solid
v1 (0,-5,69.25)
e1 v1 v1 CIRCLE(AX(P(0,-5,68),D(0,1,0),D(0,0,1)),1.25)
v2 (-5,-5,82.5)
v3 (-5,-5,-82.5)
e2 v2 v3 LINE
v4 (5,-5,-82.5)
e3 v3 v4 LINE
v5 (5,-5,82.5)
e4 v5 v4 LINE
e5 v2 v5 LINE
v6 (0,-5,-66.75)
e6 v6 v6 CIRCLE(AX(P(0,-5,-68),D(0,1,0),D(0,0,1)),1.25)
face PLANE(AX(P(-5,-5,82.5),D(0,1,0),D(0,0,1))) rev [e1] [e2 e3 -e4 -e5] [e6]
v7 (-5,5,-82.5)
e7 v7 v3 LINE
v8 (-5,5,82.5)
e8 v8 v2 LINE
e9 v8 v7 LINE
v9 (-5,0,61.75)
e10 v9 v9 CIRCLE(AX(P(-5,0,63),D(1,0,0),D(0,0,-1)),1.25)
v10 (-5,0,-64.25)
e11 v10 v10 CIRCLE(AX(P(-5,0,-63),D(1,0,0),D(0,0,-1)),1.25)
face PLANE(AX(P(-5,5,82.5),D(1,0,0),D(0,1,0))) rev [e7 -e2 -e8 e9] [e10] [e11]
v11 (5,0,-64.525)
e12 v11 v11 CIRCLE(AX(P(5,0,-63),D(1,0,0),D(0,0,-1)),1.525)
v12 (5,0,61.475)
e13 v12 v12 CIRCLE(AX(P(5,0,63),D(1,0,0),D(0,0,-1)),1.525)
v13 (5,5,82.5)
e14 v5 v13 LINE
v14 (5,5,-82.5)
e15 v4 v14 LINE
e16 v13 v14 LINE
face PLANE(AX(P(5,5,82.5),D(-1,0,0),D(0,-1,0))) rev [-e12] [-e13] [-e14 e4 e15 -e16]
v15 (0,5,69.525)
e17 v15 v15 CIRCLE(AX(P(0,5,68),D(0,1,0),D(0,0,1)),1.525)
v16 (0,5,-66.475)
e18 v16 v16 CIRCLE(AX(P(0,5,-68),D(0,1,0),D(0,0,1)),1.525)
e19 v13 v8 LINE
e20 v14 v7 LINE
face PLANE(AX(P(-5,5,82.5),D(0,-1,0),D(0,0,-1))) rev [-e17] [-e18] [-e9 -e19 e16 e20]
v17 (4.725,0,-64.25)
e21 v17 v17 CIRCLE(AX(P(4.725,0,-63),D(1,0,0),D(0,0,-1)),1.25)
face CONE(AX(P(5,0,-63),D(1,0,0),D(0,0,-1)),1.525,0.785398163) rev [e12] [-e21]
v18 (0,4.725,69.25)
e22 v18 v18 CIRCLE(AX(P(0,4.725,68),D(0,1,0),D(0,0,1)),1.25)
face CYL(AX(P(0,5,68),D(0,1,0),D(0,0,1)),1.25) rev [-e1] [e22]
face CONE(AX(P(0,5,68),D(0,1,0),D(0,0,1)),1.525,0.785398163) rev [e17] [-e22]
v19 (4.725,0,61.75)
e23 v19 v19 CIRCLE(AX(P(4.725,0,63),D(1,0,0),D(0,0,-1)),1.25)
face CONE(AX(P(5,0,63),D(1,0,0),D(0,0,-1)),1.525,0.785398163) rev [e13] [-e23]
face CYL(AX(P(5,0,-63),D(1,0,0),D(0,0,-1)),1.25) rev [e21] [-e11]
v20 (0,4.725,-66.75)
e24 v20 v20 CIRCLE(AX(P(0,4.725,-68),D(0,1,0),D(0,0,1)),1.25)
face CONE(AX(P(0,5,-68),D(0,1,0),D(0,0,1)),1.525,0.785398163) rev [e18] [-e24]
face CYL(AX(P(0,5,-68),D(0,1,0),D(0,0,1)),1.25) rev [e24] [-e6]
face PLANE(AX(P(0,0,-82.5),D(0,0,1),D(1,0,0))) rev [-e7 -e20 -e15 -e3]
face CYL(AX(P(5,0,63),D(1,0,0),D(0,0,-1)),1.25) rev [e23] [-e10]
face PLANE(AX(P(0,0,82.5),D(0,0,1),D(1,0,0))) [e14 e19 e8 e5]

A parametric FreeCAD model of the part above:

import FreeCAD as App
import Part
import Sketcher


def add_polygon(sketch, points):
    """Adds a closed chain of lines whose ends are joined by coincident constraints."""
    first, n = sketch.GeometryCount, len(points)
    for a, b in zip(points, points[1:] + points[:1]):
        sketch.addGeometry(Part.LineSegment(App.Vector(*a, 0), App.Vector(*b, 0)), False)
    for i in range(n):
        sketch.addConstraint(Sketcher.Constraint("Coincident", first + i, 2, first + (i + 1) % n, 1))

doc = App.newDocument("Part")
body = doc.addObject("PartDesign::Body", "Body")

# Sketch on XY plane
sketch1 = doc.addObject("Sketcher::SketchObject", "Sketch")
body.addObject(sketch1)
sketch1.AttachmentSupport = (doc.XY_Plane, [""])
sketch1.MapMode = "FlatFace"
add_polygon(sketch1, [(-5, 5), (-5, -5), (5, -5), (5, 5)])  # lines 0-3
sketch1.addConstraint(Sketcher.Constraint("Vertical", 0))
sketch1.addConstraint(Sketcher.Constraint("Horizontal", 1))
sketch1.addConstraint(Sketcher.Constraint("Vertical", 2))
sketch1.addConstraint(Sketcher.Constraint("Horizontal", 3))
sketch1.addConstraint(Sketcher.Constraint("Symmetric", 0, 2, 2, 2, -1, 1))
sketch1.addConstraint(Sketcher.Constraint("Equal", 3, 0))
sketch1.addConstraint(Sketcher.Constraint("DistanceX", 1, 1, 1, 2, 10.0))
pad1 = doc.addObject("PartDesign::Pad", "Pad")
body.addObject(pad1)
pad1.Profile = sketch1
pad1.Length = 165
pad1.Midplane = True

# Sketch on YZ plane
sketch2 = doc.addObject("Sketcher::SketchObject", "Sketch001")
body.addObject(sketch2)
sketch2.AttachmentSupport = (doc.YZ_Plane, [""])
sketch2.MapMode = "FlatFace"
sketch2.AttachmentOffset = App.Placement(App.Vector(0, 0, 5), App.Rotation())
sketch2.addGeometry(Part.Circle(App.Vector(0, -63, 0), App.Vector(0, 0, 1), 1.25), False)
sketch2.addGeometry(Part.Circle(App.Vector(0, 63, 0), App.Vector(0, 0, 1), 1.25), False)
sketch2.addConstraint(Sketcher.Constraint("Equal", 0, 1))
sketch2.addConstraint(Sketcher.Constraint("Symmetric", 0, 3, 1, 3, -1, 1))
sketch2.addConstraint(Sketcher.Constraint("PointOnObject", 0, 3, -2))
sketch2.addConstraint(Sketcher.Constraint("Diameter", 0, 2.5))
sketch2.addConstraint(Sketcher.Constraint("DistanceY", 0, 3, -1, 1, 63.0))
doc.recompute()
hole = doc.addObject("PartDesign::Hole", "Hole")
body.addObject(hole)
hole.Profile = sketch2
hole.ThreadType = "None"
hole.Diameter = 2.5
hole.DepthType = "ThroughAll"
hole.HoleCutType = "Countersink"
hole.HoleCutDiameter = 3.05
hole.HoleCutCountersinkAngle = 90

# Sketch on XZ plane
sketch3 = doc.addObject("Sketcher::SketchObject", "Sketch002")
body.addObject(sketch3)
sketch3.AttachmentSupport = (doc.XZ_Plane, [""])
sketch3.MapMode = "FlatFace"
sketch3.AttachmentOffset = App.Placement(App.Vector(0, 0, -5), App.Rotation())
sketch3.addGeometry(Part.Circle(App.Vector(0, -68, 0), App.Vector(0, 0, 1), 1.25), False)
sketch3.addGeometry(Part.Circle(App.Vector(0, 68, 0), App.Vector(0, 0, 1), 1.25), False)
sketch3.addConstraint(Sketcher.Constraint("Equal", 0, 1))
sketch3.addConstraint(Sketcher.Constraint("Symmetric", 0, 3, 1, 3, -1, 1))
sketch3.addConstraint(Sketcher.Constraint("PointOnObject", 0, 3, -2))
sketch3.addConstraint(Sketcher.Constraint("Diameter", 0, 2.5))
sketch3.addConstraint(Sketcher.Constraint("DistanceY", 0, 3, -1, 1, 68.0))
doc.recompute()
hole2 = doc.addObject("PartDesign::Hole", "Hole001")
body.addObject(hole2)
hole2.Profile = sketch3
hole2.ThreadType = "None"
hole2.Diameter = 2.5
hole2.DepthType = "ThroughAll"
hole2.HoleCutType = "Countersink"
hole2.HoleCutDiameter = 3.05
hole2.HoleCutCountersinkAngle = 90
hole2.Reversed = True

doc.recompute()
